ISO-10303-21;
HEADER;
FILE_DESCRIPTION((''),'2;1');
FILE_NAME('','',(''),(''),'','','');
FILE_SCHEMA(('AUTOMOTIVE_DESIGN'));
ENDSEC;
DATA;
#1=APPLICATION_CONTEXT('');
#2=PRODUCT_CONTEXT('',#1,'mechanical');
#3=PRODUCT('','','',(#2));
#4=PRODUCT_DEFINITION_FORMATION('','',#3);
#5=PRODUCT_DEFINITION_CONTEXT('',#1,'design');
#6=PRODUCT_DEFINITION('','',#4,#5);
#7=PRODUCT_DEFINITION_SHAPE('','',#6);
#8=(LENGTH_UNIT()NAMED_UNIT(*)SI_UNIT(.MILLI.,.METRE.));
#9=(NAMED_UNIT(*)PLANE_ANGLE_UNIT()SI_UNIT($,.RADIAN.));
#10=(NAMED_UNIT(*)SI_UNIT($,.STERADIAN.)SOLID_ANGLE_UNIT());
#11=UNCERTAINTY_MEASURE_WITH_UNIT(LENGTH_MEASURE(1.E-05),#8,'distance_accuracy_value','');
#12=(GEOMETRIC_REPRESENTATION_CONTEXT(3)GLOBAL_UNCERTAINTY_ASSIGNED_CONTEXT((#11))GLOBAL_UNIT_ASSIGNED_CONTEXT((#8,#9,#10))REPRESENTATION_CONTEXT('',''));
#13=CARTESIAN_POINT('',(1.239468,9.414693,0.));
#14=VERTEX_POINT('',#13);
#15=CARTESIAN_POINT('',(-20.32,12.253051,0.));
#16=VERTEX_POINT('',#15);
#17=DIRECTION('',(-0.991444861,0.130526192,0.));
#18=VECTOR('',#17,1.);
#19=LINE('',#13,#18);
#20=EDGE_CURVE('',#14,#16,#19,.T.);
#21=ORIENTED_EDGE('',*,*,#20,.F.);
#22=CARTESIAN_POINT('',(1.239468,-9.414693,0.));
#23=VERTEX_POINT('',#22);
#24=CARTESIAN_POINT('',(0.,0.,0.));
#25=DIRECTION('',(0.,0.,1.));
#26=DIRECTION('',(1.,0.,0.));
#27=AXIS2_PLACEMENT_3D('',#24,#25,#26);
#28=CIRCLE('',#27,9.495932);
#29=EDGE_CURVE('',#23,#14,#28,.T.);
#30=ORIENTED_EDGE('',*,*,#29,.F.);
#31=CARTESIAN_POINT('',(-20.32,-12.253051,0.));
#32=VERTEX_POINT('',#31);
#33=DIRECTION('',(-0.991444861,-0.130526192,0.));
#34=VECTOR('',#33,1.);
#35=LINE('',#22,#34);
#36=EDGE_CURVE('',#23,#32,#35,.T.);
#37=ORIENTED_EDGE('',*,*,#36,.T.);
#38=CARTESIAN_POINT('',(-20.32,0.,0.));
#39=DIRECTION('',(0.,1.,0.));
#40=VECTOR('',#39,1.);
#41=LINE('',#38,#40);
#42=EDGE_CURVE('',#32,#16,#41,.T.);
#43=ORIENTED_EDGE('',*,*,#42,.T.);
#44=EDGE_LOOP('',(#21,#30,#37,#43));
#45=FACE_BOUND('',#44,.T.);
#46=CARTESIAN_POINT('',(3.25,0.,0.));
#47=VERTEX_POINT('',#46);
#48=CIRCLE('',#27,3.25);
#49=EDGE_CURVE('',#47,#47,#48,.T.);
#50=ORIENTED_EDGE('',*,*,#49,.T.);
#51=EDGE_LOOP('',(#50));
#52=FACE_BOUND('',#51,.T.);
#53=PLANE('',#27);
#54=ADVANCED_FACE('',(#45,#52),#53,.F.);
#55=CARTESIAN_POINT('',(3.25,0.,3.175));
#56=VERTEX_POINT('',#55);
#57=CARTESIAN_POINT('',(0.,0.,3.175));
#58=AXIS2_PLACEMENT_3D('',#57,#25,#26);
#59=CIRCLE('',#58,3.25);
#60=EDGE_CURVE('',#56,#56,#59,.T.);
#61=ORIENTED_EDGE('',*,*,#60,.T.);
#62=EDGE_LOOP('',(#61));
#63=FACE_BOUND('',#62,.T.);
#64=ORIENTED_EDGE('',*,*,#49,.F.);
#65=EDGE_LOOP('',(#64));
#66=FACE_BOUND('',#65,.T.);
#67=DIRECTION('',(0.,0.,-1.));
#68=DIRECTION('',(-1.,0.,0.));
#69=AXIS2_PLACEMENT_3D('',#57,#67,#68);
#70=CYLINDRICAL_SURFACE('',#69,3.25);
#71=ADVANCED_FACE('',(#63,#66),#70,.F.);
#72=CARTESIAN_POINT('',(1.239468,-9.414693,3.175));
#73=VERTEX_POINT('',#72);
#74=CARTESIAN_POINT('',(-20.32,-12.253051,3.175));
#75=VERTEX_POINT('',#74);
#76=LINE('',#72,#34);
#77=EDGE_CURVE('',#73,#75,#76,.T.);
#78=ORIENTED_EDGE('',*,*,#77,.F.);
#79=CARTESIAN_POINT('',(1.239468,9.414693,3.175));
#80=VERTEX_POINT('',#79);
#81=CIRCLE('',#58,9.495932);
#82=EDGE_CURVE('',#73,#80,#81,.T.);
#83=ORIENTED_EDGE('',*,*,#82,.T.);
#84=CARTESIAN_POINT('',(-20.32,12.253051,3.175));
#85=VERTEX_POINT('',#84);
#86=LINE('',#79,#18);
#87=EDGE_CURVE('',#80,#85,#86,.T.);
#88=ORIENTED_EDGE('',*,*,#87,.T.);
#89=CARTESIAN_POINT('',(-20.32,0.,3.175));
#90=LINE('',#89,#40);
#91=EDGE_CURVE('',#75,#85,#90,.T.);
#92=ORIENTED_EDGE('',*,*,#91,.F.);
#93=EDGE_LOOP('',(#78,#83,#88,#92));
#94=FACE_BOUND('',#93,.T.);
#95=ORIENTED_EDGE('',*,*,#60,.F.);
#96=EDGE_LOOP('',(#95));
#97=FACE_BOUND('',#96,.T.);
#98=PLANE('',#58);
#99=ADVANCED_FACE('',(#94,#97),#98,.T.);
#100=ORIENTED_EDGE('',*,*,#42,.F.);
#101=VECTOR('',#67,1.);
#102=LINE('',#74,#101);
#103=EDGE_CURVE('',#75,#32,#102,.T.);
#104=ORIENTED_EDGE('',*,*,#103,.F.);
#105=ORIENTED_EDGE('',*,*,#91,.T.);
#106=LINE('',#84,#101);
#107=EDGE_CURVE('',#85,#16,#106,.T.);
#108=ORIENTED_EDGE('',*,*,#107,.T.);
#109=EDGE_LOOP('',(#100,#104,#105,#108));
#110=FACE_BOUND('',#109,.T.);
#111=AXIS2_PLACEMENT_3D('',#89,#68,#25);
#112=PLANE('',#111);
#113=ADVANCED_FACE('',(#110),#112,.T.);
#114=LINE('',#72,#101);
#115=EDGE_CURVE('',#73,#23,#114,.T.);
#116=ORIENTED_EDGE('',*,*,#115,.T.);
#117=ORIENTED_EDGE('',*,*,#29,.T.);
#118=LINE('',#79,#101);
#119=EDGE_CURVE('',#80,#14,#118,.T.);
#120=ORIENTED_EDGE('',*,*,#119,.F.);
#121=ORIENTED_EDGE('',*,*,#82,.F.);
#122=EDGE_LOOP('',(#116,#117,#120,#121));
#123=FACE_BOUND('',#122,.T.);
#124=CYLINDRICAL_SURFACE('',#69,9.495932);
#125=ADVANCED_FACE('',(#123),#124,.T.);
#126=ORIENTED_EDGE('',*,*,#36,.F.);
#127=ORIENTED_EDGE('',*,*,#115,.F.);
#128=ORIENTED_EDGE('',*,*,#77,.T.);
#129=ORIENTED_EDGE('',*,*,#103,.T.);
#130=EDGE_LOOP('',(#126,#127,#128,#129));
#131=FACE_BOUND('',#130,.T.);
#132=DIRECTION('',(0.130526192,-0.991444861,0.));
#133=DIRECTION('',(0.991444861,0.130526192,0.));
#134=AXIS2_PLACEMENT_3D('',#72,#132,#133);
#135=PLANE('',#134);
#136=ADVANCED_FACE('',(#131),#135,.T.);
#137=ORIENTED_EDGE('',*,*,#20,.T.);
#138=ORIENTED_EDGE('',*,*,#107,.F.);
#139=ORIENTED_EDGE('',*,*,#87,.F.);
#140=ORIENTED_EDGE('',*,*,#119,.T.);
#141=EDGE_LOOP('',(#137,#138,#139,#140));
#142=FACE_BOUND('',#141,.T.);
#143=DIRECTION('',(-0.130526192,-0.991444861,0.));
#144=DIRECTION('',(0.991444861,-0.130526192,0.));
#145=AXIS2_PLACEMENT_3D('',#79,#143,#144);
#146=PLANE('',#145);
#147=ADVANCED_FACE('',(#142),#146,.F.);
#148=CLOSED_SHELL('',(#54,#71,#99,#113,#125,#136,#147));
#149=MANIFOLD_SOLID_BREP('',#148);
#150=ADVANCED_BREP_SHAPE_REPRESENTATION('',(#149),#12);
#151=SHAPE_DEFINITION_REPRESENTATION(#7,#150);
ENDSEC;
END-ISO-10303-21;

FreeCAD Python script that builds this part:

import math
import FreeCAD as App
import Part
import Sketcher
Q = App.Units.Quantity

doc = App.newDocument("Part")
body = doc.addObject("PartDesign::Body", "Body")

sketch1 = body.newObject("Sketcher::SketchObject", "Sketch")
sketch1.AttachmentSupport = (doc.getObject("XY_Plane"), [""])
sketch1.MapMode = "FlatFace"
sketch1.addGeometry([
    Part.LineSegment(App.Vector(-20.3, -12.3, 0), App.Vector(1.2, -9.4, 0)),
    Part.ArcOfCircle(Part.Circle(App.Vector(0, 0, 0), App.Vector(0, 0, 1), 9.5), math.radians(-83), math.radians(83)),
    Part.LineSegment(App.Vector(1.2, 9.4, 0), App.Vector(-20.3, 12.3, 0)),
    Part.LineSegment(App.Vector(-20.3, 12.3, 0), App.Vector(-20.3, -12.3, 0)),
    Part.Circle(App.Vector(0, 0, 0), App.Vector(0, 0, 1), 3.2),
], False)
sketch1.addConstraint([
    Sketcher.Constraint("Tangent", 0, 2, 1, 1),
    Sketcher.Constraint("Tangent", 1, 2, 2, 1),
    Sketcher.Constraint("Coincident", 2, 2, 3, 1),
    Sketcher.Constraint("Coincident", 3, 2, 0, 1),
    Sketcher.Constraint("Vertical", 3),
    Sketcher.Constraint("Coincident", 1, 3, -1, 1),
    Sketcher.Constraint("Coincident", 4, 3, -1, 1),
    Sketcher.Constraint("Vertical", 0, 2, 1, 2),
    Sketcher.Constraint("Diameter", 4, 6.5),
    Sketcher.Constraint("Angle", 0, Q("7.5 deg")),
    Sketcher.Constraint("DistanceX", 2, 2, -1, 1, 20.32),
    Sketcher.Constraint("DistanceY", 3, 2, 3, 1, 24.506102),
])
pad1 = body.newObject("PartDesign::Pad", "Pad")
pad1.Profile = sketch1
pad1.Length = 3.175

doc.recompute()
